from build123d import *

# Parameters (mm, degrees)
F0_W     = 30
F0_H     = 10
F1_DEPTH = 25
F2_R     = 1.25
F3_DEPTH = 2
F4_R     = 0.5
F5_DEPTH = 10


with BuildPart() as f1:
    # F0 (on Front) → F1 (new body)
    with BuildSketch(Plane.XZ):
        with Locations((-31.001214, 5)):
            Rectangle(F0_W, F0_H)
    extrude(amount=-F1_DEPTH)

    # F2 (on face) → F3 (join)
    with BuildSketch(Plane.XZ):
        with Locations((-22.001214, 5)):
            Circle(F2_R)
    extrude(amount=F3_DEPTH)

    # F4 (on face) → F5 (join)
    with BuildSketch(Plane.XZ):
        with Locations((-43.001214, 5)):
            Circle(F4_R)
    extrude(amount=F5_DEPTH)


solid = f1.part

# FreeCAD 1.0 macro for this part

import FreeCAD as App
import Part
import Sketcher
Q = App.Units.Quantity

doc = App.newDocument("Part")
body = doc.addObject("PartDesign::Body", "Body")

sketch1 = doc.addObject("Sketcher::SketchObject", "Sketch")
body.addObject(sketch1)
sketch1.AttachmentSupport = (doc.XZ_Plane, [""])
sketch1.MapMode = "FlatFace"
sketch1.addGeometry(Part.LineSegment(App.Vector(-46, 10, 0), App.Vector(-46, 0, 0)), False)
sketch1.addGeometry(Part.LineSegment(App.Vector(-46, 0, 0), App.Vector(-16, 0, 0)), False)
sketch1.addGeometry(Part.LineSegment(App.Vector(-16, 0, 0), App.Vector(-16, 10, 0)), False)
sketch1.addGeometry(Part.LineSegment(App.Vector(-16, 10, 0), App.Vector(-46, 10, 0)), False)
sketch1.addConstraint(Sketcher.Constraint("Coincident", 0, 2, 1, 1))
sketch1.addConstraint(Sketcher.Constraint("Coincident", 1, 2, 2, 1))
sketch1.addConstraint(Sketcher.Constraint("Coincident", 2, 2, 3, 1))
sketch1.addConstraint(Sketcher.Constraint("Coincident", 3, 2, 0, 1))
sketch1.addConstraint(Sketcher.Constraint("Vertical", 0))
sketch1.addConstraint(Sketcher.Constraint("Horizontal", 1))
sketch1.addConstraint(Sketcher.Constraint("Vertical", 2))
sketch1.addConstraint(Sketcher.Constraint("Horizontal", 3))
sketch1.addConstraint(Sketcher.Constraint("PointOnObject", 0, 2, -1))
sketch1.addConstraint(Sketcher.Constraint("DistanceX", 1, 1, 1, 2, Q("30 mm")))
sketch1.addConstraint(Sketcher.Constraint("DistanceY", 0, 2, 0, 1, Q("10 mm")))
sketch1.addConstraint(Sketcher.Constraint("DistanceX", 0, 2, -1, 1, Q("46.001214 mm")))
pad1 = doc.addObject("PartDesign::Pad", "Pad")
body.addObject(pad1)
pad1.Profile = sketch1
pad1.Length = 25
pad1.Reversed = True

sketch2 = doc.addObject("Sketcher::SketchObject", "Sketch001")
body.addObject(sketch2)
sketch2.AttachmentSupport = (doc.XZ_Plane, [""])
sketch2.MapMode = "FlatFace"
sketch2.addGeometry(Part.Circle(App.Vector(-22, 5, 0), App.Vector(0, 0, 1), 1.2), False)
sketch2.addConstraint(Sketcher.Constraint("Diameter", 0, Q("2.5 mm")))
sketch2.addConstraint(Sketcher.Constraint("DistanceY", -1, 1, 0, 3, Q("5 mm")))
sketch2.addConstraint(Sketcher.Constraint("DistanceX", 0, 3, -1, 1, Q("22.001214 mm")))
pad2 = doc.addObject("PartDesign::Pad", "Pad001")
body.addObject(pad2)
pad2.Profile = sketch2
pad2.Length = 2

sketch3 = doc.addObject("Sketcher::SketchObject", "Sketch002")
body.addObject(sketch3)
sketch3.AttachmentSupport = (doc.XZ_Plane, [""])
sketch3.MapMode = "FlatFace"
sketch3.addGeometry(Part.Circle(App.Vector(-43, 5, 0), App.Vector(0, 0, 1), 0.5), False)
sketch3.addConstraint(Sketcher.Constraint("Diameter", 0, Q("1 mm")))
sketch3.addConstraint(Sketcher.Constraint("DistanceY", -1, 1, 0, 3, Q("5 mm")))
sketch3.addConstraint(Sketcher.Constraint("DistanceX", 0, 3, -1, 1, Q("43.001214 mm")))
pad3 = doc.addObject("PartDesign::Pad", "Pad002")
body.addObject(pad3)
pad3.Profile = sketch3
pad3.Length = 10

doc.recompute()
